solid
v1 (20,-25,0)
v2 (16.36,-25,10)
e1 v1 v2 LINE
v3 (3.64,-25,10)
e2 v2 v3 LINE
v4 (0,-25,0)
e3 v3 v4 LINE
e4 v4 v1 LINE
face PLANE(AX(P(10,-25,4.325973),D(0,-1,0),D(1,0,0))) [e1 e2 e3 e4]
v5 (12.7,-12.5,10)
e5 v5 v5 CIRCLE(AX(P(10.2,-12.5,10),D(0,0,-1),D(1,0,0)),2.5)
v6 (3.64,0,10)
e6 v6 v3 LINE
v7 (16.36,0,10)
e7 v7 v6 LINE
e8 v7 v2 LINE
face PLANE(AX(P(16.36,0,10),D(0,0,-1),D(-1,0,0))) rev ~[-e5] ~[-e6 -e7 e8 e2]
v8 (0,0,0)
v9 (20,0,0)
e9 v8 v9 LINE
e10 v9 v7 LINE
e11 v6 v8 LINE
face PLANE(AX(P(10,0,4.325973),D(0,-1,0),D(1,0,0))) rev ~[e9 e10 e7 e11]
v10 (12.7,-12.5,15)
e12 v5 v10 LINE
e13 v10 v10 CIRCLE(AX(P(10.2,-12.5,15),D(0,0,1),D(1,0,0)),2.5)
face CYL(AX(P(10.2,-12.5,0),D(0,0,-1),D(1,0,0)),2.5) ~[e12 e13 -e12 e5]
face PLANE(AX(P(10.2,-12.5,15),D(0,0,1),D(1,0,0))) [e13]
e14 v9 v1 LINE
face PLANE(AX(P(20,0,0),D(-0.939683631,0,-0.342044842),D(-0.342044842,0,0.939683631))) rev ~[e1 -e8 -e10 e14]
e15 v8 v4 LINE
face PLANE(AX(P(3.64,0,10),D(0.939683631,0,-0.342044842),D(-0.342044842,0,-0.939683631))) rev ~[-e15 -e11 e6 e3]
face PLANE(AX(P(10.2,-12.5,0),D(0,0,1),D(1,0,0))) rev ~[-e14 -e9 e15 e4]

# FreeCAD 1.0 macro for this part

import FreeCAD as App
import Part
import Sketcher

doc = App.newDocument("Part")
params = doc.addObject("Spreadsheet::Sheet", "Params")
for row, (alias, value) in enumerate([
    ("sketch1_width", "20 mm"),
    ("sketch1_width2", "12.72 mm"),
    ("pad1_length", "25 mm"),
    ("sketch2_diameter", "5 mm"),
    ("pad2_length", "15 mm"),
], start=1):
    params.set(f"A{row}", alias)
    params.set(f"B{row}", "=" + value)
    params.setAlias(f"B{row}", alias)

body = doc.addObject("PartDesign::Body", "Body")

# Sketch on XZ plane
sketch1 = body.newObject("Sketcher::SketchObject", "Sketch")
sketch1.AttachmentSupport = (doc.getObject("XZ_Plane"), [""])
sketch1.MapMode = "FlatFace"
sketch1.addGeometry([
    Part.LineSegment(App.Vector(4, 10, 0), App.Vector(0, 0, 0)),
    Part.LineSegment(App.Vector(0, 0, 0), App.Vector(20, 0, 0)),
    Part.LineSegment(App.Vector(20, 0, 0), App.Vector(16, 10, 0)),
    Part.LineSegment(App.Vector(16, 10, 0), App.Vector(4, 10, 0)),
], False)
sketch1.addConstraint([
    Sketcher.Constraint("Coincident", 0, 2, 1, 1),
    Sketcher.Constraint("Coincident", 1, 2, 2, 1),
    Sketcher.Constraint("Coincident", 2, 2, 3, 1),
    Sketcher.Constraint("Coincident", 3, 2, 0, 1),
    Sketcher.Constraint("Horizontal", 1),
    Sketcher.Constraint("Horizontal", 3),
    Sketcher.Constraint("Coincident", 0, 2, -1, 1),
    Sketcher.Constraint("Equal", 0, 2),
    Sketcher.Constraint("DistanceX", 1, 1, 1, 2, 20.0),
    Sketcher.Constraint("DistanceY", -1, 1, 2, 2, 10.0),
    Sketcher.Constraint("DistanceX", 3, 2, 3, 1, 12.72),
])
sketch1.setExpression("Constraints[8]", "Params.sketch1_width")
sketch1.setExpression("Constraints[10]", "Params.sketch1_width2")
pad1 = body.newObject("PartDesign::Pad", "Pad")
pad1.Profile = sketch1
pad1.setExpression("Length", "Params.pad1_length")

# Sketch on XY plane
sketch2 = body.newObject("Sketcher::SketchObject", "Sketch001")
sketch2.AttachmentSupport = (doc.getObject("XY_Plane"), [""])
sketch2.MapMode = "FlatFace"
sketch2.addGeometry(Part.Circle(App.Vector(10.2, -12.5, 0), App.Vector(0, 0, 1), 2.5), False)
sketch2.addConstraint([
    Sketcher.Constraint("Diameter", 0, 5.0),
    Sketcher.Constraint("DistanceX", -1, 1, 0, 3, 10.2),
    Sketcher.Constraint("DistanceY", 0, 3, -1, 1, 12.5),
])
sketch2.setExpression("Constraints[0]", "Params.sketch2_diameter")
pad2 = body.newObject("PartDesign::Pad", "Pad001")
pad2.Profile = sketch2
pad2.setExpression("Length", "Params.pad2_length")

doc.recompute()
